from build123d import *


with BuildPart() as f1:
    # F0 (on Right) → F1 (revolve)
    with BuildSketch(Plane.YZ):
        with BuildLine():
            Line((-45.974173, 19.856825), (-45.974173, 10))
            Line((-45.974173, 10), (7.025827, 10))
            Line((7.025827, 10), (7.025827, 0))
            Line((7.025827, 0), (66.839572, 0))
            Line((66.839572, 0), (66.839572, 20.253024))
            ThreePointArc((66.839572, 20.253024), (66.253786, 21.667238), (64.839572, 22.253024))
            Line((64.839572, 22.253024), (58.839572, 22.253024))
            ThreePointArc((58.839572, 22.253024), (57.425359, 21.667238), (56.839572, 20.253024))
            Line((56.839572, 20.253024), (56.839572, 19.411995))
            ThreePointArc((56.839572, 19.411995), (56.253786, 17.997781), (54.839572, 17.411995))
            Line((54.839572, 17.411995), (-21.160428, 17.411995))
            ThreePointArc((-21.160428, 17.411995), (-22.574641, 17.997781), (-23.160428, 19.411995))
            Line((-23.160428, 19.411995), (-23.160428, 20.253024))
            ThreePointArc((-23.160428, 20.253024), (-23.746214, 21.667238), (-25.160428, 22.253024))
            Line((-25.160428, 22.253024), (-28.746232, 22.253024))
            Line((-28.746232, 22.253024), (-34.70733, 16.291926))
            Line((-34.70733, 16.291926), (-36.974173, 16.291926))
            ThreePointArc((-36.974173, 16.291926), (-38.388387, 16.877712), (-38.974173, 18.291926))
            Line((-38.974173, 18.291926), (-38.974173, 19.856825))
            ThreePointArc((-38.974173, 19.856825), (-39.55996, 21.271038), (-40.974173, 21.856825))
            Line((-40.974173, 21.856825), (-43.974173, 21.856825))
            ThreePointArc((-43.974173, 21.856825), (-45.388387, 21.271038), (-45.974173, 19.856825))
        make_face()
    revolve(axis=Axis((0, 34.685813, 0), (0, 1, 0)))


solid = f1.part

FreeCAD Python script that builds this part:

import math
import FreeCAD as App
import Part
import Sketcher

V = App.Vector
Q = App.Units.Quantity

doc = App.newDocument("Part")
body = doc.addObject("PartDesign::Body", "Body")

# Sketch on YZ plane
sketch1 = doc.addObject("Sketcher::SketchObject", "Sketch")
body.addObject(sketch1)
sketch1.AttachmentSupport = (doc.YZ_Plane, [""])
sketch1.MapMode = "FlatFace"
sketch1.addGeometry([
    Part.LineSegment(V(-45.974173, 19.856825, 0), V(-45.974173, 10, 0)),  # 0
    Part.LineSegment(V(-45.974173, 10, 0), V(7.025827, 10, 0)),  # 1
    Part.LineSegment(V(7.025827, 10, 0), V(7.025827, 0, 0)),  # 2
    Part.LineSegment(V(7.025827, 0, 0), V(66.839572, 0, 0)),  # 3
    Part.LineSegment(V(66.839572, 0, 0), V(66.839572, 20.253024, 0)),  # 4
    Part.ArcOfCircle(Part.Circle(V(64.839573, 20.253025, 0), V(0, 0, 1), 1.999999), math.radians(-0.000043), math.radians(90.000043)),  # 5
    Part.LineSegment(V(64.839572, 22.253024, 0), V(58.839572, 22.253024, 0)),  # 6
    Part.ArcOfCircle(Part.Circle(V(58.839572, 20.253024, 0), V(0, 0, 1), 2), math.radians(90.000006), math.radians(179.999994)),  # 7
    Part.LineSegment(V(56.839572, 20.253024, 0), V(56.839572, 19.411995, 0)),  # 8
    Part.ArcOfCircle(Part.Circle(V(54.839573, 19.411994, 0), V(0, 0, 1), 1.999999), math.radians(-90.000043), math.radians(0.000043)),  # 9
    Part.LineSegment(V(54.839572, 17.411995, 0), V(-21.160428, 17.411995, 0)),  # 10
    Part.ArcOfCircle(Part.Circle(V(-21.160428, 19.411995, 0), V(0, 0, 1), 2), math.radians(-179.999994), math.radians(-90.000006)),  # 11
    Part.LineSegment(V(-23.160428, 19.411995, 0), V(-23.160428, 20.253024, 0)),  # 12
    Part.ArcOfCircle(Part.Circle(V(-25.160427, 20.253025, 0), V(0, 0, 1), 1.999999), math.radians(-0.000043), math.radians(90.000043)),  # 13
    Part.LineSegment(V(-25.160428, 22.253024, 0), V(-28.746232, 22.253024, 0)),  # 14
    Part.LineSegment(V(-28.746232, 22.253024, 0), V(-34.70733, 16.291926, 0)),  # 15
    Part.LineSegment(V(-34.70733, 16.291926, 0), V(-36.974173, 16.291926, 0)),  # 16
    Part.ArcOfCircle(Part.Circle(V(-36.974174, 18.291925, 0), V(0, 0, 1), 1.999999), math.radians(179.999957), math.radians(270.000043)),  # 17
    Part.LineSegment(V(-38.974173, 18.291926, 0), V(-38.974173, 19.856825, 0)),  # 18
    Part.ArcOfCircle(Part.Circle(V(-40.974175, 19.856823, 0), V(0, 0, 1), 2.000002), math.radians(0.000055), math.radians(89.999945)),  # 19
    Part.LineSegment(V(-40.974173, 21.856825, 0), V(-43.974173, 21.856825, 0)),  # 20
    Part.ArcOfCircle(Part.Circle(V(-43.974173, 19.856825, 0), V(0, 0, 1), 2), math.radians(90.000006), math.radians(179.999994)),  # 21
], False)
sketch1.addConstraint([
    Sketcher.Constraint("Coincident", 0, 2, 1, 1),
    Sketcher.Constraint("Coincident", 1, 2, 2, 1),
    Sketcher.Constraint("Coincident", 2, 2, 3, 1),
    Sketcher.Constraint("Coincident", 3, 2, 4, 1),
    Sketcher.Constraint("Tangent", 4, 2, 5, 1),
    Sketcher.Constraint("Tangent", 5, 2, 6, 1),
    Sketcher.Constraint("Tangent", 6, 2, 7, 1),
    Sketcher.Constraint("Tangent", 7, 2, 8, 1),
    Sketcher.Constraint("Tangent", 8, 2, 9, 2),
    Sketcher.Constraint("Tangent", 9, 1, 10, 1),
    Sketcher.Constraint("Tangent", 10, 2, 11, 2),
    Sketcher.Constraint("Tangent", 11, 1, 12, 1),
    Sketcher.Constraint("Tangent", 12, 2, 13, 1),
    Sketcher.Constraint("Tangent", 13, 2, 14, 1),
    Sketcher.Constraint("Coincident", 14, 2, 15, 1),
    Sketcher.Constraint("Coincident", 15, 2, 16, 1),
    Sketcher.Constraint("Tangent", 16, 2, 17, 2),
    Sketcher.Constraint("Tangent", 17, 1, 18, 1),
    Sketcher.Constraint("Tangent", 18, 2, 19, 1),
    Sketcher.Constraint("Tangent", 19, 2, 20, 1),
    Sketcher.Constraint("Tangent", 20, 2, 21, 1),
    Sketcher.Constraint("Tangent", 21, 2, 0, 1),
    Sketcher.Constraint("Vertical", 0),
    Sketcher.Constraint("Horizontal", 1),
    Sketcher.Constraint("Vertical", 2),
    Sketcher.Constraint("Horizontal", 3),
    Sketcher.Constraint("Vertical", 4),
    Sketcher.Constraint("Horizontal", 6),
    Sketcher.Constraint("Vertical", 8),
    Sketcher.Constraint("Horizontal", 10),
    Sketcher.Constraint("Vertical", 12),
    Sketcher.Constraint("Horizontal", 14),
    Sketcher.Constraint("Horizontal", 16),
    Sketcher.Constraint("Vertical", 18),
    Sketcher.Constraint("Horizontal", 20),
    Sketcher.Constraint("Equal", 5, 7),
    Sketcher.Constraint("Equal", 7, 9),
    Sketcher.Constraint("Equal", 9, 11),
    Sketcher.Constraint("Equal", 11, 13),
    Sketcher.Constraint("Equal", 13, 17),
    Sketcher.Constraint("Equal", 11, 19),
    Sketcher.Constraint("Equal", 19, 21),
    Sketcher.Constraint("PointOnObject", 2, 2, -1),
    Sketcher.Constraint("Horizontal", 7, 3, 13, 3),
    Sketcher.Constraint("Radius", 5, 1.999999),
    Sketcher.Constraint("DistanceX", 1, 1, 1, 2, 53.0),
    Sketcher.Constraint("DistanceX", 6, 2, 6, 1, 6.0),
    Sketcher.Constraint("DistanceX", 10, 2, 10, 1, 76.0),
    Sketcher.Constraint("DistanceX", 20, 2, 20, 1, 3.0),
    Sketcher.Constraint("DistanceY", 2, 2, 2, 1, 10.0),
    Sketcher.Constraint("Angle", 15, Q("-135 deg")),
    Sketcher.Constraint("DistanceY", 18, 1, 18, 2, 1.564899),
    Sketcher.Constraint("DistanceY", 8, 2, 8, 1, 0.841029),
    Sketcher.Constraint("DistanceY", 17, 3, 13, 3, 1.961101),
    Sketcher.Constraint("DistanceX", 3, 1, 3, 2, 59.813745),
    Sketcher.Constraint("DistanceX", 14, 2, 14, 1, 3.585804),
    Sketcher.Constraint("DistanceY", 0, 2, 0, 1, 9.856825),
    Sketcher.Constraint("DistanceX", -1, 1, 6, 2, 58.839572),
])
revolution = doc.addObject("PartDesign::Revolution", "Revolution")
body.addObject(revolution)
revolution.Profile = sketch1
revolution.ReferenceAxis = (sketch1, ["H_Axis"])
revolution.Angle = 360

doc.recompute()
